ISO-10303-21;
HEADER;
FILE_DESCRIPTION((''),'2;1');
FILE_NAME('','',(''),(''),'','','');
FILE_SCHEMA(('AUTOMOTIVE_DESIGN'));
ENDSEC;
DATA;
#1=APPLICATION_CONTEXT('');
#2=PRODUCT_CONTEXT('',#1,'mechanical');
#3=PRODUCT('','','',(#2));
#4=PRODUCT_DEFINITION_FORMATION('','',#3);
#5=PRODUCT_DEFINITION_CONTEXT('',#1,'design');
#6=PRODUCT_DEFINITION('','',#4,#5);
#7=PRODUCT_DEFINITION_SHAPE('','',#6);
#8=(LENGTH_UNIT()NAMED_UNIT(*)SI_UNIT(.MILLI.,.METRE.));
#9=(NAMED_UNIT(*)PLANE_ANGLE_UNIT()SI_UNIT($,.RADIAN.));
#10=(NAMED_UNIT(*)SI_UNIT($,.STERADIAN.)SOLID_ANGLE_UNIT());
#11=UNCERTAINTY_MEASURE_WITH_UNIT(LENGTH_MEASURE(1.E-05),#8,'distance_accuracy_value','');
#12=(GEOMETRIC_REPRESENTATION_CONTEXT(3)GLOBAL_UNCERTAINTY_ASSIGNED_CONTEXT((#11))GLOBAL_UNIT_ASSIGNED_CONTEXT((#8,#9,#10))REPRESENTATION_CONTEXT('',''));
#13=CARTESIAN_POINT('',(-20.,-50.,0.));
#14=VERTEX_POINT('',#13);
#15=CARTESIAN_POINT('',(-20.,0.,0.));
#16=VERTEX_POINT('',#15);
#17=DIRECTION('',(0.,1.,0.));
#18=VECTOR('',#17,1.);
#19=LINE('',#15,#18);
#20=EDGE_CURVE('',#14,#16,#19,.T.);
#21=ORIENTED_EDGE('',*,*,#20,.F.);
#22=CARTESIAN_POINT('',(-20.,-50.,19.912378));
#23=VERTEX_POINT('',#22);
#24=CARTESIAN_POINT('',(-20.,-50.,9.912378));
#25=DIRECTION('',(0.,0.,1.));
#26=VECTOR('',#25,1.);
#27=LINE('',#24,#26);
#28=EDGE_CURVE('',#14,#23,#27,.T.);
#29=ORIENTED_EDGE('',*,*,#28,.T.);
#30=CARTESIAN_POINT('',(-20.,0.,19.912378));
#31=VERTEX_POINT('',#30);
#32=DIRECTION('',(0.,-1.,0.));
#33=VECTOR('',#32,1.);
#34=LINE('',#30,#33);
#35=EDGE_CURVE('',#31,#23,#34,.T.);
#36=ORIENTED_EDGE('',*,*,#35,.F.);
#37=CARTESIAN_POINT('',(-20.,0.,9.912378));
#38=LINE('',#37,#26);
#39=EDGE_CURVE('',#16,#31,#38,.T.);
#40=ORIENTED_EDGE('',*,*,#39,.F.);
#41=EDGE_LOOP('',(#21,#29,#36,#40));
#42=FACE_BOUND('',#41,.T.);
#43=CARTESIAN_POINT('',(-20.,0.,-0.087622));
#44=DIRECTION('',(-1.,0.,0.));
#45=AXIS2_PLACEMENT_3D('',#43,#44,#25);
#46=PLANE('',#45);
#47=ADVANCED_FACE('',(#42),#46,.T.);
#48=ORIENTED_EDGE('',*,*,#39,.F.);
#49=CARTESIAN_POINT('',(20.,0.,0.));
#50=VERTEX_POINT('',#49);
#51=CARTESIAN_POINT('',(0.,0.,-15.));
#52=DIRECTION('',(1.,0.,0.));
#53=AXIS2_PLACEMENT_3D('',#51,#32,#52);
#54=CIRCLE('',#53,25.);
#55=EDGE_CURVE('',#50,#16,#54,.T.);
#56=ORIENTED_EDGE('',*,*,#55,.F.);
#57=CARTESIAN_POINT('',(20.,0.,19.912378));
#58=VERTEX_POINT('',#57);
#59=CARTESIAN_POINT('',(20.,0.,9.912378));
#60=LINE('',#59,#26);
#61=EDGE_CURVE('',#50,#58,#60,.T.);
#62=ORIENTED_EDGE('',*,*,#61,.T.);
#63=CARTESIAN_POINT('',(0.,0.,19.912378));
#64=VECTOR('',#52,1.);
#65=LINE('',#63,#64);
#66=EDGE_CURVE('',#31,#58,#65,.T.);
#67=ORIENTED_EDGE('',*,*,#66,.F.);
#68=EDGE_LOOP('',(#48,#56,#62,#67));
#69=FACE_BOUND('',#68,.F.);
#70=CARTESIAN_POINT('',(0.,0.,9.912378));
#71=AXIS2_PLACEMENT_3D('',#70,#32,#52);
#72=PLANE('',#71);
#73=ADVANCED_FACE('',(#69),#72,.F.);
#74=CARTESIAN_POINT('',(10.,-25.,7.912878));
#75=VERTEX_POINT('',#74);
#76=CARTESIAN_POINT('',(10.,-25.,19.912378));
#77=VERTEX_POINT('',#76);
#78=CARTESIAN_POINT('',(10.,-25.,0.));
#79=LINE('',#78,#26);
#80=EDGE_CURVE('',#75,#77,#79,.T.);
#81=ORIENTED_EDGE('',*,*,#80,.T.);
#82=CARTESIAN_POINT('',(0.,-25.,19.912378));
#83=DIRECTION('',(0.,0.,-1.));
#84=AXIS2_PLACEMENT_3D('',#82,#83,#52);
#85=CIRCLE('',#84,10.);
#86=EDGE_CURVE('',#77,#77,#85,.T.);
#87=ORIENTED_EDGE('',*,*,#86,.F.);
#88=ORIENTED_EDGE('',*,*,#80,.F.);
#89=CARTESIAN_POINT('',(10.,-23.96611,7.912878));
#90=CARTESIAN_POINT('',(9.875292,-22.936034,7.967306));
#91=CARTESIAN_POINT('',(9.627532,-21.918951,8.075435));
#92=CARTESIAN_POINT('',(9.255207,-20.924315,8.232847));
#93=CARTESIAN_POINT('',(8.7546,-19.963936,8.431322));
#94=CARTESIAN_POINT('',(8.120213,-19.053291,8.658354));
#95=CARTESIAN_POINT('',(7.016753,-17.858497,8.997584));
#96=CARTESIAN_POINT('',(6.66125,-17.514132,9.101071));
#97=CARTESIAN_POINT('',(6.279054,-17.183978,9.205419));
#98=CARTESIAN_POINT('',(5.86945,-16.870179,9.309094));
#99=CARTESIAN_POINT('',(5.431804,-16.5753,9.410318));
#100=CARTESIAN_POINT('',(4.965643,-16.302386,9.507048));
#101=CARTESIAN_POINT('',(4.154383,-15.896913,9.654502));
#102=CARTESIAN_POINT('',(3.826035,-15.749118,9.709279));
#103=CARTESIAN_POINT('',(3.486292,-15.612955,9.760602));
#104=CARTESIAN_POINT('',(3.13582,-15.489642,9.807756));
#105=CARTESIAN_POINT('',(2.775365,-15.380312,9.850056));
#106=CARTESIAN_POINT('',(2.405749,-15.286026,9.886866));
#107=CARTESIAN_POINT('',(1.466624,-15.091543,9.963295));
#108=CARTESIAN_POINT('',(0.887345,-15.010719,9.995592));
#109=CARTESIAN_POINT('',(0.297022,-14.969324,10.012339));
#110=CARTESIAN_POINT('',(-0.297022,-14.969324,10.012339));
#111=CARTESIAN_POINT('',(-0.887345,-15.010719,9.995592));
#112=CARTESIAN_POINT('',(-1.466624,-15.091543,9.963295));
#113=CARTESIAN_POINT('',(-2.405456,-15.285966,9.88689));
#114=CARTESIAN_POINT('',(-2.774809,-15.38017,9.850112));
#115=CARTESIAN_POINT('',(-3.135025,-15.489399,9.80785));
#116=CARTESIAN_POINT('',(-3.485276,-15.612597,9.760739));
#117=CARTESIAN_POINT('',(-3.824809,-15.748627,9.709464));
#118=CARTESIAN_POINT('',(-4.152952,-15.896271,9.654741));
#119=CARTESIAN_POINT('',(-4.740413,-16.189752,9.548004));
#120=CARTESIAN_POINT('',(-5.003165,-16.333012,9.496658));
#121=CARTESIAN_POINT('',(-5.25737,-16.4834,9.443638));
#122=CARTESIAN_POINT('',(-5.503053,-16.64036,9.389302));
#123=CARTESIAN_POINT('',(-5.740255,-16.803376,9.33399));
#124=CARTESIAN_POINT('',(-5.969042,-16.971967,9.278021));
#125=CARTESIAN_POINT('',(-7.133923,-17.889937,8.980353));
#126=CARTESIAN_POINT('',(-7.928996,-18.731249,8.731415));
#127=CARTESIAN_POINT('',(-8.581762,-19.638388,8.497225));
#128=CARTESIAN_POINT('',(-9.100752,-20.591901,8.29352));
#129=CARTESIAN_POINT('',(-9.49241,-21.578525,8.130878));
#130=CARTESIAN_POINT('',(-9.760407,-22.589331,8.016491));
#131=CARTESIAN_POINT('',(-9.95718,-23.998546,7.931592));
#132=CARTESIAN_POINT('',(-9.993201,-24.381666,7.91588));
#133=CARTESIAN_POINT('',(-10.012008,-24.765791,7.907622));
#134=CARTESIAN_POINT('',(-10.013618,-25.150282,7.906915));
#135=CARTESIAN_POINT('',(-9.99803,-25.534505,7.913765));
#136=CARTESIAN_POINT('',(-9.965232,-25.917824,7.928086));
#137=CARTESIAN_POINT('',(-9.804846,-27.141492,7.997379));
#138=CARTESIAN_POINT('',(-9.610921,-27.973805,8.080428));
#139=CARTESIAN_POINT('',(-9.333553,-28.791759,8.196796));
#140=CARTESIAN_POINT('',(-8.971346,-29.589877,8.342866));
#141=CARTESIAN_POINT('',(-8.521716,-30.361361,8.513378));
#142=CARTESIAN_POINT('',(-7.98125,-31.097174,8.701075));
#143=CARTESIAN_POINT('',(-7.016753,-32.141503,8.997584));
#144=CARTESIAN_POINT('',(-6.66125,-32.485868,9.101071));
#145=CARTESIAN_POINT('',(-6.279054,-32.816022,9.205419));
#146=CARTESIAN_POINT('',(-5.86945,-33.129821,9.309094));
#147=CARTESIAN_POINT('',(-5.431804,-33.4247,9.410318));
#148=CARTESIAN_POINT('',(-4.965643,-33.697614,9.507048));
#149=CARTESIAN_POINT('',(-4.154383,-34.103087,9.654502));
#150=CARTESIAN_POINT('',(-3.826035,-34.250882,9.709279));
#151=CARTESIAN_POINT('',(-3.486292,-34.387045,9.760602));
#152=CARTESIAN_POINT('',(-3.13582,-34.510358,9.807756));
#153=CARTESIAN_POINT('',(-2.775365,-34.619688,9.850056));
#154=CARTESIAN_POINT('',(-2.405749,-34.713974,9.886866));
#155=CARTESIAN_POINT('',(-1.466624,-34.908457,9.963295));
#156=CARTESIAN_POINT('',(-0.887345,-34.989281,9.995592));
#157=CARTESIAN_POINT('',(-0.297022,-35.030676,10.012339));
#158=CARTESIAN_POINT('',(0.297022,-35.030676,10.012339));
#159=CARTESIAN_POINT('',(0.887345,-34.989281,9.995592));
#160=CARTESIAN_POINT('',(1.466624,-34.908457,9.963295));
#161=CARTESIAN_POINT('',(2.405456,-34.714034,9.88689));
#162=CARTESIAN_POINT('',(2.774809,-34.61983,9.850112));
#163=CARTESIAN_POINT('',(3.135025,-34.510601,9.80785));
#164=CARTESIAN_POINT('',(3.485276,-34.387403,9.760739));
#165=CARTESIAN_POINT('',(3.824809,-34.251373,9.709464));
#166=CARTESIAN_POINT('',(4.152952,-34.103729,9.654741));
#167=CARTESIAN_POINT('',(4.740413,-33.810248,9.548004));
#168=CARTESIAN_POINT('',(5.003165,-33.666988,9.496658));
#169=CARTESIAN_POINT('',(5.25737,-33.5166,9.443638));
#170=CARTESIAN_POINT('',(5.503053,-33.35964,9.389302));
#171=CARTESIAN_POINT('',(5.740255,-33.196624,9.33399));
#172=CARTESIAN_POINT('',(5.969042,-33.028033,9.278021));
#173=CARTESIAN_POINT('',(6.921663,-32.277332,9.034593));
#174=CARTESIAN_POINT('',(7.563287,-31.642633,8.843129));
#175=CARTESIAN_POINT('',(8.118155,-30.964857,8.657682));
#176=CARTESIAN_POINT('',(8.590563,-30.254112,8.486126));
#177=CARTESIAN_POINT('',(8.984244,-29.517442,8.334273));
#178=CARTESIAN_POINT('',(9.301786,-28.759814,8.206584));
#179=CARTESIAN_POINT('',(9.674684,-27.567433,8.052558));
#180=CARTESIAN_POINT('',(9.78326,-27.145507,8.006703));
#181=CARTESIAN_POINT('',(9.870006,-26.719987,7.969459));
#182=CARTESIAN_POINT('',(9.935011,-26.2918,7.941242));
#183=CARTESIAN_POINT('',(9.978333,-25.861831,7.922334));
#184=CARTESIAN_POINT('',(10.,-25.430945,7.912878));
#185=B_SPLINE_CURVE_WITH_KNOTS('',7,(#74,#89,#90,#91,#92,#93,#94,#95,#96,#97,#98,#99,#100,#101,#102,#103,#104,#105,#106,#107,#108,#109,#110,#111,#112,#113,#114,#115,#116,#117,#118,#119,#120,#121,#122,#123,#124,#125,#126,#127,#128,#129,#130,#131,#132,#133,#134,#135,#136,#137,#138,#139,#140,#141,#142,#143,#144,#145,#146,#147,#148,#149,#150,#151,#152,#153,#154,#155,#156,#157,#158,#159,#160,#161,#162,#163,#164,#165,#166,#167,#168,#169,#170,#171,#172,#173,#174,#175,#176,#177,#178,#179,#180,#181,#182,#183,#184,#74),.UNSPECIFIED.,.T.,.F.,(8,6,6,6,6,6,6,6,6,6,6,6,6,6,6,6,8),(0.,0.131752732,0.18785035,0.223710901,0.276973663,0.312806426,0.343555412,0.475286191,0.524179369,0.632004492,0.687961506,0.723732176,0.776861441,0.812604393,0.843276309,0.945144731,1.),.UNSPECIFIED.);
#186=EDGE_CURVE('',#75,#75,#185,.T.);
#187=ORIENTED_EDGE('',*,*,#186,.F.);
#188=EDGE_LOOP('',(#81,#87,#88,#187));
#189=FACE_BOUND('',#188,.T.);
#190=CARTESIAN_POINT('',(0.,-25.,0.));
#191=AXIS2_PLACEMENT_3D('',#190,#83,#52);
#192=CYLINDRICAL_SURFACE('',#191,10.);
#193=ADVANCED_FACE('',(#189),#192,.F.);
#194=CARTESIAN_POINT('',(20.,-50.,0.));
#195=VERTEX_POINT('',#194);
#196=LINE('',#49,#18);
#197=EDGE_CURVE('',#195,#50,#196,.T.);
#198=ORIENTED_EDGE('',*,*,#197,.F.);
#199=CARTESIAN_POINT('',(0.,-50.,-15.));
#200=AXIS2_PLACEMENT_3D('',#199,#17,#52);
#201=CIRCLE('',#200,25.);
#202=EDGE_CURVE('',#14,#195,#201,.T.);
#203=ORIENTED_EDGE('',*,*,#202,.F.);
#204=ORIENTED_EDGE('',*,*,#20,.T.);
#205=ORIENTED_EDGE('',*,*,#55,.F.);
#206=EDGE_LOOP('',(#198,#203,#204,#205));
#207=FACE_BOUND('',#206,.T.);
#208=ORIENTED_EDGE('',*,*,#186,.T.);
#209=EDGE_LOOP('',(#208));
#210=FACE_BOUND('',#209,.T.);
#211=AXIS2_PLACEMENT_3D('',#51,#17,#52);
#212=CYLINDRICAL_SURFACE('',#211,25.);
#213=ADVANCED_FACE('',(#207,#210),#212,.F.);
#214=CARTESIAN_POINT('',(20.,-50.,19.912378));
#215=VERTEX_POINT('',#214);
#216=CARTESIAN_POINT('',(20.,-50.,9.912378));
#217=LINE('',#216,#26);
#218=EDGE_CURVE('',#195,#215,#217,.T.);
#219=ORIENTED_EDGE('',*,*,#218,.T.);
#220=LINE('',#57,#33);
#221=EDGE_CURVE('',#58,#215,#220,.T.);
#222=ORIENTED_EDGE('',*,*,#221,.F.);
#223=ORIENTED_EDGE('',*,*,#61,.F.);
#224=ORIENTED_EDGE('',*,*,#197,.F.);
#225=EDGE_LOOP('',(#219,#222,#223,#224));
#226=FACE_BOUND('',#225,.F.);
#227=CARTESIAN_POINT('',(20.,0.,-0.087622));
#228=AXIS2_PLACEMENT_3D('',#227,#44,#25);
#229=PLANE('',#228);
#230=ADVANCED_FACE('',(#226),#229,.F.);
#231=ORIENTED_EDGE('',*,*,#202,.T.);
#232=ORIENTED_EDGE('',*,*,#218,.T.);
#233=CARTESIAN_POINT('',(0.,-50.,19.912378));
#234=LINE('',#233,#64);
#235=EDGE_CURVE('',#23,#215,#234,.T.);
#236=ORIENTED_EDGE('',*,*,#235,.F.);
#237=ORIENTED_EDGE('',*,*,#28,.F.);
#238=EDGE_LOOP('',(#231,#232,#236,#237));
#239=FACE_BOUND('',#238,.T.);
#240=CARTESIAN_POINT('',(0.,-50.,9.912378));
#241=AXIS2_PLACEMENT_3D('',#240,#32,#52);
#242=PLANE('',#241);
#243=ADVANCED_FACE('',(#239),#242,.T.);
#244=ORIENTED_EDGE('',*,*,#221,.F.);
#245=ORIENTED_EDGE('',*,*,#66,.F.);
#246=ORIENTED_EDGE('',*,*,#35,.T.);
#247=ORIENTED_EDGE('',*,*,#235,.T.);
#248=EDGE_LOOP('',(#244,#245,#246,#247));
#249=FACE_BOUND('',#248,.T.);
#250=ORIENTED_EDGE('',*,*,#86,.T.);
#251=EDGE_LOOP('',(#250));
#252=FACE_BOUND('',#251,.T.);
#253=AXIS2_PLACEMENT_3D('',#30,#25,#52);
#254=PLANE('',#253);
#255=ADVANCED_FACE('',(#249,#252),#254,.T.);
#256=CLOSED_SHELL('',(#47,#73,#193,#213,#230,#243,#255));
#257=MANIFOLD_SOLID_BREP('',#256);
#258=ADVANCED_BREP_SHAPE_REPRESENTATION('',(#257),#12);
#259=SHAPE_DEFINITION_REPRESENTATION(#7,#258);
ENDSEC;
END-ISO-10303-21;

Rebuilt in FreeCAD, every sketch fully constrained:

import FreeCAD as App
import Part
import Sketcher

V = App.Vector


def add_polygon(sketch, points):
    """Adds a closed chain of lines whose ends are joined by coincident constraints."""
    first, n = sketch.GeometryCount, len(points)
    for a, b in zip(points, points[1:] + points[:1]):
        sketch.addGeometry(Part.LineSegment(App.Vector(*a, 0), App.Vector(*b, 0)), False)
    for i in range(n):
        sketch.addConstraint(Sketcher.Constraint("Coincident", first + i, 2, first + (i + 1) % n, 1))

doc = App.newDocument("Part")
params = doc.addObject("Spreadsheet::Sheet", "Params")
for row, (alias, value) in enumerate([
    ("sketch1_width", "40 mm"),
    ("sketch1_height", "20 mm"),
    ("pad1_length", "50 mm"),
    ("sketch2_diameter", "50 mm"),
    ("sketch3_diameter", "20 mm"),
], start=1):
    params.set(f"A{row}", alias)
    params.set(f"B{row}", "=" + value)
    params.setAlias(f"B{row}", alias)

body = doc.addObject("PartDesign::Body", "Body")

# Sketch on XZ plane
sketch1 = body.newObject("Sketcher::SketchObject", "Sketch")
sketch1.AttachmentSupport = (doc.getObject("XZ_Plane"), [""])
sketch1.MapMode = "FlatFace"
add_polygon(sketch1, [(-20, 20), (-20, 0), (20, 0), (20, 20)])  # lines 0-3
sketch1.addConstraint([
    Sketcher.Constraint("Vertical", 0),
    Sketcher.Constraint("Horizontal", 1),
    Sketcher.Constraint("Vertical", 2),
    Sketcher.Constraint("Horizontal", 3),
    Sketcher.Constraint("DistanceX", 1, 1, 1, 2, 40.0),
    Sketcher.Constraint("DistanceY", 0, 2, 0, 1, 20.0),
    Sketcher.Constraint("DistanceX", 0, 2, -1, 1, 20.0),
    Sketcher.Constraint("DistanceY", -1, 1, 2, 2, 19.912378),
])
sketch1.setExpression("Constraints[8]", "Params.sketch1_width")
sketch1.setExpression("Constraints[9]", "Params.sketch1_height")
pad1 = body.newObject("PartDesign::Pad", "Pad")
pad1.Profile = sketch1
pad1.setExpression("Length", "Params.pad1_length")

# Sketch on XZ plane
sketch2 = body.newObject("Sketcher::SketchObject", "Sketch001")
sketch2.AttachmentSupport = (doc.getObject("XZ_Plane"), [""])
sketch2.MapMode = "FlatFace"
sketch2.addGeometry(Part.Circle(V(0, -15, 0), V(0, 0, 1), 25), False)
sketch2.addConstraint([
    Sketcher.Constraint("PointOnObject", 0, 3, -2),
    Sketcher.Constraint("Diameter", 0, 50.0),
    Sketcher.Constraint("DistanceY", 0, 3, -1, 1, 15.0),
])
sketch2.setExpression("Constraints[1]", "Params.sketch2_diameter")
pocket1 = body.newObject("PartDesign::Pocket", "Pocket")
pocket1.Profile = sketch2
pocket1.Type = "ThroughAll"
pocket1.Reversed = True

# Sketch on XY plane
sketch3 = body.newObject("Sketcher::SketchObject", "Sketch002")
sketch3.AttachmentSupport = (doc.getObject("XY_Plane"), [""])
sketch3.MapMode = "FlatFace"
sketch3.addGeometry(Part.Circle(V(0, -25, 0), V(0, 0, 1), 10), False)
sketch3.addConstraint([
    Sketcher.Constraint("PointOnObject", 0, 3, -2),
    Sketcher.Constraint("Diameter", 0, 20.0),
    Sketcher.Constraint("DistanceY", 0, 3, -1, 1, 25.0),
])
sketch3.setExpression("Constraints[1]", "Params.sketch3_diameter")
pocket2 = body.newObject("PartDesign::Pocket", "Pocket001")
pocket2.Profile = sketch3
pocket2.Type = "ThroughAll"
pocket2.Reversed = True

doc.recompute()
